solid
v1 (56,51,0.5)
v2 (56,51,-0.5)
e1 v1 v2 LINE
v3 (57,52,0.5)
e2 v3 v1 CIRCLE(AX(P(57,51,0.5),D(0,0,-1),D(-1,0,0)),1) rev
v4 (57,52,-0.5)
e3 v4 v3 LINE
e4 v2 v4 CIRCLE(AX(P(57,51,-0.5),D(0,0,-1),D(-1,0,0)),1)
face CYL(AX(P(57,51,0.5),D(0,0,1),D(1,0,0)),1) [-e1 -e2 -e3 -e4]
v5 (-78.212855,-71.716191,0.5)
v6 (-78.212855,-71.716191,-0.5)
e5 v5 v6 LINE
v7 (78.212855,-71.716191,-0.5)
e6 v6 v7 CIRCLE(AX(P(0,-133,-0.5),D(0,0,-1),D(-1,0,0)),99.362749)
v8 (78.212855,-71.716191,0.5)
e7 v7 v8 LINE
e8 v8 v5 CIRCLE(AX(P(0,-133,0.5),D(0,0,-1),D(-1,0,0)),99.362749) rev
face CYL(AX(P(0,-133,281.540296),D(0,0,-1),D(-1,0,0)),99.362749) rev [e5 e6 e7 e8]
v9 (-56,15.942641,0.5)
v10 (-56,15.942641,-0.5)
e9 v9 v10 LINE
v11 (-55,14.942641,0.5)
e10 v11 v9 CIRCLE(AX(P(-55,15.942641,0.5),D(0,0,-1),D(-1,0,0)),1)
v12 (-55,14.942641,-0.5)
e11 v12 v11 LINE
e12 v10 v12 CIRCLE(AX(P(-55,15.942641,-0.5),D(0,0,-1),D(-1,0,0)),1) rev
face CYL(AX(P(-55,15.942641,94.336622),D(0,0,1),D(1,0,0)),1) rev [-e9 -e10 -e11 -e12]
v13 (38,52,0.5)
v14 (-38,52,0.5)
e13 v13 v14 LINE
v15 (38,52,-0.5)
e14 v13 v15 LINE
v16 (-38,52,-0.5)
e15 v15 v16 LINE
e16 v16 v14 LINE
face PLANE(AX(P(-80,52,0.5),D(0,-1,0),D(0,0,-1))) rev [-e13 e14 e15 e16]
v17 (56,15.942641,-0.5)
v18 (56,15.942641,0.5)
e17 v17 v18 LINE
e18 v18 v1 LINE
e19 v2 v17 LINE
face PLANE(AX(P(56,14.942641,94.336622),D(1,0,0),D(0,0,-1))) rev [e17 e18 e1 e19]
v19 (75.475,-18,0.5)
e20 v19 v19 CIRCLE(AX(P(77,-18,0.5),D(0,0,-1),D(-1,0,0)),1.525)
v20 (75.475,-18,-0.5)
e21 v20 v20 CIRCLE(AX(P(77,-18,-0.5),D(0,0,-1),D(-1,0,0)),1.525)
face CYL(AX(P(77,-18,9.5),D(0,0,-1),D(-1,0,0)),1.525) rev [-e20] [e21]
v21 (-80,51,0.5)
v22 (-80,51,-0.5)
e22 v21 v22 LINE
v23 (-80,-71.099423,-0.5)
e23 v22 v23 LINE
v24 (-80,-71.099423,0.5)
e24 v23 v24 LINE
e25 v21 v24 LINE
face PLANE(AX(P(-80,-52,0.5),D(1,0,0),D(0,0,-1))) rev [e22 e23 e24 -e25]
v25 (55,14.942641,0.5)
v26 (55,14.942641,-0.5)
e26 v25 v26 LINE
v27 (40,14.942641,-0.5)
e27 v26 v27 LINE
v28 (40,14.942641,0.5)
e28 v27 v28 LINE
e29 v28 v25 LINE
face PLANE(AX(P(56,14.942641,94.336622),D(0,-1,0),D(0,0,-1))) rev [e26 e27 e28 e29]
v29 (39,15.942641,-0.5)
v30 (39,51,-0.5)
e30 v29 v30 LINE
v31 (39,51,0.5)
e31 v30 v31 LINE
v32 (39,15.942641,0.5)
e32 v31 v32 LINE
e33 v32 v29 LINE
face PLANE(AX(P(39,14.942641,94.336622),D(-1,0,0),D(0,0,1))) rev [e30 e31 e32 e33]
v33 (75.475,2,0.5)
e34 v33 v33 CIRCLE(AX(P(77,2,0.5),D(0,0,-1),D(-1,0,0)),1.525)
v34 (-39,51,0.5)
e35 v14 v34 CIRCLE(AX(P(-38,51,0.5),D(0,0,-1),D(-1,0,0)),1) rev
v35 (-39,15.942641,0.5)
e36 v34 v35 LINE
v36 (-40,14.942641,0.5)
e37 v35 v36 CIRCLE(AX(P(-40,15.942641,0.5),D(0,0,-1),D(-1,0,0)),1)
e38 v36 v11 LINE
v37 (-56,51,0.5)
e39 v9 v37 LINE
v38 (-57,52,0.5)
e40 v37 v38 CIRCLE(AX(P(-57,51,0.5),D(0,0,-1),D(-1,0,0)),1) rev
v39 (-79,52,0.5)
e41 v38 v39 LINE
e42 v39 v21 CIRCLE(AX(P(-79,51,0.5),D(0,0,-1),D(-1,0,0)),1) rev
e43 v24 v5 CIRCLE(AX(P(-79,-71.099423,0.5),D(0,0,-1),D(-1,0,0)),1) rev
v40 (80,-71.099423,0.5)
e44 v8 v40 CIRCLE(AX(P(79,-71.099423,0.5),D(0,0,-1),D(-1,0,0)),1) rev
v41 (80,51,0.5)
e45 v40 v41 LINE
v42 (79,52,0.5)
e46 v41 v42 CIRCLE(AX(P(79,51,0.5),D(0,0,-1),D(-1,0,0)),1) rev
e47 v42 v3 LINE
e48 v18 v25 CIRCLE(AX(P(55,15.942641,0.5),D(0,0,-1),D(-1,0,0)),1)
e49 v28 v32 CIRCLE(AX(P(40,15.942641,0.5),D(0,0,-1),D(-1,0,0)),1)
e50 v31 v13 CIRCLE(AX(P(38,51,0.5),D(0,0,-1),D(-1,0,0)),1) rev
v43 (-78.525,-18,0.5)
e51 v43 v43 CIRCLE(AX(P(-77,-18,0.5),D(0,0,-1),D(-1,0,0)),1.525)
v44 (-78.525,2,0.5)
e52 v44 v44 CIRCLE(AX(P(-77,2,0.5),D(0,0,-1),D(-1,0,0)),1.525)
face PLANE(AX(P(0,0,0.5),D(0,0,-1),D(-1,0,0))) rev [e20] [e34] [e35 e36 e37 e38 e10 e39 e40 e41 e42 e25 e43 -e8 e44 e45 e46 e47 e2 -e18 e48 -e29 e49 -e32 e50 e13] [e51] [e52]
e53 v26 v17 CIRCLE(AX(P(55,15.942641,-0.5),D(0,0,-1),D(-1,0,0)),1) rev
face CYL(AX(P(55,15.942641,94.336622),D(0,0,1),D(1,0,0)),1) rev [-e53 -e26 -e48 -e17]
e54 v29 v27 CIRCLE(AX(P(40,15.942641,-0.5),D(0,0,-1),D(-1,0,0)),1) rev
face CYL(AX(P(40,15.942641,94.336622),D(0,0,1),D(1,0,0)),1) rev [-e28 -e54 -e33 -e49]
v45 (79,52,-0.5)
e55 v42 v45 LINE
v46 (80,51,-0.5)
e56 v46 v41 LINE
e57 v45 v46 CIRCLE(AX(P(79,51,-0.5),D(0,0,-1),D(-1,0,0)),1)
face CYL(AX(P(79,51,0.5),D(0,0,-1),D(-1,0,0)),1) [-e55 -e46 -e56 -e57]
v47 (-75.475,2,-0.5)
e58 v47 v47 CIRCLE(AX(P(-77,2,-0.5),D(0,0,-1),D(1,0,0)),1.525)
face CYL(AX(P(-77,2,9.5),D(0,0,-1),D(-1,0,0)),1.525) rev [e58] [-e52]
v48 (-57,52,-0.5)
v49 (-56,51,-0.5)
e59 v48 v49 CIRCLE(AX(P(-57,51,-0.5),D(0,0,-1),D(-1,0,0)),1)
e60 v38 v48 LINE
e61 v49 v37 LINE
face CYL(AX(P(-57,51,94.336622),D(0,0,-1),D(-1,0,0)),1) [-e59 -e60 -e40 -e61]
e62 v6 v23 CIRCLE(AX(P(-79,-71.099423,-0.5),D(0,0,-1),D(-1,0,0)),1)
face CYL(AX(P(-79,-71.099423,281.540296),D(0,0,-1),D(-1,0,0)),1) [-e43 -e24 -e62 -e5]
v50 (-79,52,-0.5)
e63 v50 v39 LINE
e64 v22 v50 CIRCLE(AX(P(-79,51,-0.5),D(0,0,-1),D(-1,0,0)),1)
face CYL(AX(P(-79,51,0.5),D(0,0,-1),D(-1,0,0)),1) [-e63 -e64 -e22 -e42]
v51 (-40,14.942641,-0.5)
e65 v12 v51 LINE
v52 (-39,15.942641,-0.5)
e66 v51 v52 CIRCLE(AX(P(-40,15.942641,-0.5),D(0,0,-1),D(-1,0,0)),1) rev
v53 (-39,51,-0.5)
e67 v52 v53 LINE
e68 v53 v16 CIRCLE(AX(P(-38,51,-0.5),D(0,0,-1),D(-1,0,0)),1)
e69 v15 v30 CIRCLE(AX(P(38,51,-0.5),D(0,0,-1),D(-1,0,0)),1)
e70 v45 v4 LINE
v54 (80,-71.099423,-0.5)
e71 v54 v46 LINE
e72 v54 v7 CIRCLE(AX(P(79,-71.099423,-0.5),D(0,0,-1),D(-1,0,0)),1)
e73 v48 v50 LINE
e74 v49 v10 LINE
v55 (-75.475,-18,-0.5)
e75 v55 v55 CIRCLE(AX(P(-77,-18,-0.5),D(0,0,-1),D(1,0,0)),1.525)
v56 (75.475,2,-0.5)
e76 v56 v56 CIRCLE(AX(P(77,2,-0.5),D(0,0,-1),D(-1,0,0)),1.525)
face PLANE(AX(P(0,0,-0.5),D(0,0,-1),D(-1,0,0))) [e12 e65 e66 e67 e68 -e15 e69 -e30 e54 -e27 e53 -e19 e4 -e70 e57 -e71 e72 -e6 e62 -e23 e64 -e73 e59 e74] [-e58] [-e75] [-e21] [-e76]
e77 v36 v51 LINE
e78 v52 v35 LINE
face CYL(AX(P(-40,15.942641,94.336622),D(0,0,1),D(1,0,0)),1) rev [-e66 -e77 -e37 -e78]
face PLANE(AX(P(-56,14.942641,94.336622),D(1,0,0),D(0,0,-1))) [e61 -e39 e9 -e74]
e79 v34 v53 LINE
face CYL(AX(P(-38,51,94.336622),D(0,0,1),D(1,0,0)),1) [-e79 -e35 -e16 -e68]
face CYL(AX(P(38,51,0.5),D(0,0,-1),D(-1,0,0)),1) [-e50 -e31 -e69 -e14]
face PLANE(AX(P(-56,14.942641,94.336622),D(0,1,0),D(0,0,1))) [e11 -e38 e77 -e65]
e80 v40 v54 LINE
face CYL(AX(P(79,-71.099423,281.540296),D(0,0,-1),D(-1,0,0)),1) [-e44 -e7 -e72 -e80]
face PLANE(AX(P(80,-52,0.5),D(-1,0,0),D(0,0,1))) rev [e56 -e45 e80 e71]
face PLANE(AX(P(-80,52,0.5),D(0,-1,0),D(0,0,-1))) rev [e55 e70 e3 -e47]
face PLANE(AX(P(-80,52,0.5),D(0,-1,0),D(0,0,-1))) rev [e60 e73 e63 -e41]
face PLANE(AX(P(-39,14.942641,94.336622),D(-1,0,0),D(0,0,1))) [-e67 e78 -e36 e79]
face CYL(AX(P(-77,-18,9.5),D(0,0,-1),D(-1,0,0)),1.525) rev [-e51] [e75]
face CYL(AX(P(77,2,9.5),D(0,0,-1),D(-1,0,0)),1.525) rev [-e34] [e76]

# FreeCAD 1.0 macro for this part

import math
import FreeCAD as App
import Part
import Sketcher

V = App.Vector
Q = App.Units.Quantity


def edges_at(feature, points):
    """Names of the edges that pass closest to the given points."""
    edges = feature.Shape.Edges
    near = lambda p: min(range(len(edges)), key=lambda i: edges[i].distToShape(Part.Vertex(*p))[0])
    return sorted({f"Edge{near(p) + 1}" for p in points})

doc = App.newDocument("Part")
body = doc.addObject("PartDesign::Body", "Body")

# Sketch on XY plane
sketch1 = doc.addObject("Sketcher::SketchObject", "Sketch")
body.addObject(sketch1)
sketch1.AttachmentSupport = (doc.XY_Plane, [""])
sketch1.MapMode = "FlatFace"
sketch1.addGeometry(Part.LineSegment(V(-80, 52, 0), V(-80, -52, 0)), False)
sketch1.addGeometry(Part.LineSegment(V(-80, -52, 0), V(80, -52, 0)), False)
sketch1.addGeometry(Part.LineSegment(V(80, -52, 0), V(80, 52, 0)), False)
sketch1.addGeometry(Part.LineSegment(V(80, 52, 0), V(-80, 52, 0)), False)
sketch1.addConstraint(Sketcher.Constraint("Coincident", 0, 2, 1, 1))
sketch1.addConstraint(Sketcher.Constraint("Coincident", 1, 2, 2, 1))
sketch1.addConstraint(Sketcher.Constraint("Coincident", 2, 2, 3, 1))
sketch1.addConstraint(Sketcher.Constraint("Coincident", 3, 2, 0, 1))
sketch1.addConstraint(Sketcher.Constraint("Vertical", 0))
sketch1.addConstraint(Sketcher.Constraint("Horizontal", 1))
sketch1.addConstraint(Sketcher.Constraint("Vertical", 2))
sketch1.addConstraint(Sketcher.Constraint("Horizontal", 3))
sketch1.addConstraint(Sketcher.Constraint("Symmetric", 0, 2, 2, 2, -1, 1))
sketch1.addConstraint(Sketcher.Constraint("DistanceX", 1, 1, 1, 2, Q("160 mm")))
sketch1.addConstraint(Sketcher.Constraint("DistanceY", 0, 2, 0, 1, Q("104 mm")))
pad1 = doc.addObject("PartDesign::Pad", "Pad")
body.addObject(pad1)
pad1.Profile = sketch1
pad1.Length = 1
pad1.Midplane = True

# Sketch on XY plane
sketch2 = doc.addObject("Sketcher::SketchObject", "Sketch001")
body.addObject(sketch2)
sketch2.AttachmentSupport = (doc.XY_Plane, [""])
sketch2.MapMode = "FlatFace"
sketch2.AttachmentOffset = App.Placement(V(0, 0, -0.5), App.Rotation())
sketch2.addGeometry(Part.Circle(V(0, -133, 0), V(0, 0, 1), 99), False)
sketch2.addConstraint(Sketcher.Constraint("PointOnObject", 0, 3, -2))
sketch2.addConstraint(Sketcher.Constraint("DistanceY", 0, 3, -1, 1, Q("133 mm")))
sketch2.addConstraint(Sketcher.Constraint("Diameter", 0, Q("198.725499 mm")))
pocket1 = doc.addObject("PartDesign::Pocket", "Pocket")
body.addObject(pocket1)
pocket1.Profile = sketch2
pocket1.Length = 1
pocket1.Reversed = True

# Sketch on XY plane
sketch3 = doc.addObject("Sketcher::SketchObject", "Sketch002")
body.addObject(sketch3)
sketch3.AttachmentSupport = (doc.XY_Plane, [""])
sketch3.MapMode = "FlatFace"
sketch3.AttachmentOffset = App.Placement(V(0, 0, -0.5), App.Rotation())
sketch3.addGeometry(Part.LineSegment(V(-80, -74, 0), V(-80, -52, 0)), False)
sketch3.addGeometry(Part.LineSegment(V(-80, -52, 0), V(-58, -52, 0)), False)
sketch3.addGeometry(Part.ArcOfCircle(Part.Circle(V(0, -133, 0), V(0, 0, 1), 99), math.radians(125.39), math.radians(143.62)), False)
sketch3.addConstraint(Sketcher.Constraint("Coincident", 0, 2, 1, 1))
sketch3.addConstraint(Sketcher.Constraint("Coincident", 1, 2, 2, 1))
sketch3.addConstraint(Sketcher.Constraint("Coincident", 2, 2, 0, 1))
sketch3.addConstraint(Sketcher.Constraint("Vertical", 0))
sketch3.addConstraint(Sketcher.Constraint("Horizontal", 1))
sketch3.addConstraint(Sketcher.Constraint("PointOnObject", 2, 3, -2))
sketch3.addConstraint(Sketcher.Constraint("DistanceY", 2, 3, -1, 1, Q("133 mm")))
sketch3.addConstraint(Sketcher.Constraint("DistanceX", 0, 2, -1, 1, Q("80 mm")))
sketch3.addConstraint(Sketcher.Constraint("DistanceY", 0, 2, -1, 1, Q("52 mm")))
sketch3.addConstraint(Sketcher.Constraint("Radius", 2, Q("99.36275 mm")))
pad2 = doc.addObject("PartDesign::Pad", "Pad001")
body.addObject(pad2)
pad2.Profile = sketch3
pad2.Length = 1
doc.recompute()

mirrored = doc.addObject("PartDesign::Mirrored", "Mirrored")
body.addObject(mirrored)
mirrored.Originals = [pad2]
mirrored.MirrorPlane = (doc.YZ_Plane, [""])
body.Tip = mirrored

# Sketch on XY plane
sketch4 = doc.addObject("Sketcher::SketchObject", "Sketch003")
body.addObject(sketch4)
sketch4.AttachmentSupport = (doc.XY_Plane, [""])
sketch4.MapMode = "FlatFace"
sketch4.AttachmentOffset = App.Placement(V(0, 0, -0.5), App.Rotation())
sketch4.addGeometry(Part.LineSegment(V(56, 107, 0), V(56, 15, 0)), False)
sketch4.addGeometry(Part.LineSegment(V(56, 15, 0), V(39, 15, 0)), False)
sketch4.addGeometry(Part.LineSegment(V(39, 15, 0), V(39, 107, 0)), False)
sketch4.addGeometry(Part.LineSegment(V(39, 107, 0), V(56, 107, 0)), False)
sketch4.addConstraint(Sketcher.Constraint("Coincident", 0, 2, 1, 1))
sketch4.addConstraint(Sketcher.Constraint("Coincident", 1, 2, 2, 1))
sketch4.addConstraint(Sketcher.Constraint("Coincident", 2, 2, 3, 1))
sketch4.addConstraint(Sketcher.Constraint("Coincident", 3, 2, 0, 1))
sketch4.addConstraint(Sketcher.Constraint("Vertical", 0))
sketch4.addConstraint(Sketcher.Constraint("Horizontal", 1))
sketch4.addConstraint(Sketcher.Constraint("Vertical", 2))
sketch4.addConstraint(Sketcher.Constraint("Horizontal", 3))
sketch4.addConstraint(Sketcher.Constraint("DistanceX", 1, 2, 1, 1, Q("17 mm")))
sketch4.addConstraint(Sketcher.Constraint("DistanceX", -1, 1, 0, 2, Q("56 mm")))
sketch4.addConstraint(Sketcher.Constraint("DistanceY", 0, 2, 0, 1, Q("92.283864 mm")))
sketch4.addConstraint(Sketcher.Constraint("DistanceY", -1, 1, 0, 2, Q("14.942641 mm")))
pocket2 = doc.addObject("PartDesign::Pocket", "Pocket001")
body.addObject(pocket2)
pocket2.Profile = sketch4
pocket2.Length = 1
pocket2.Reversed = True
doc.recompute()

mirrored2 = doc.addObject("PartDesign::Mirrored", "Mirrored001")
body.addObject(mirrored2)
mirrored2.Originals = [pocket2]
mirrored2.MirrorPlane = (doc.YZ_Plane, [""])
body.Tip = mirrored2

# Sketch on XY plane
sketch5 = doc.addObject("Sketcher::SketchObject", "Sketch004")
body.addObject(sketch5)
sketch5.AttachmentSupport = (doc.XY_Plane, [""])
sketch5.MapMode = "FlatFace"
sketch5.AttachmentOffset = App.Placement(V(0, 0, -0.5), App.Rotation())
sketch5.addGeometry(Part.Circle(V(77, 2, 0), V(0, 0, 1), 1.5), False)
sketch5.addGeometry(Part.Circle(V(77, -18, 0), V(0, 0, 1), 1.5), False)
sketch5.addGeometry(Part.Circle(V(-77, -18, 0), V(0, 0, 1), 1.5), False)
sketch5.addGeometry(Part.Circle(V(-77, 2, 0), V(0, 0, 1), 1.5), False)
sketch5.addConstraint(Sketcher.Constraint("Equal", 0, 1))
sketch5.addConstraint(Sketcher.Constraint("Equal", 1, 2))
sketch5.addConstraint(Sketcher.Constraint("Equal", 2, 3))
sketch5.addConstraint(Sketcher.Constraint("Symmetric", 1, 3, 2, 3, -2))
sketch5.addConstraint(Sketcher.Constraint("Symmetric", 0, 3, 3, 3, -2))
sketch5.addConstraint(Sketcher.Constraint("Vertical", 0, 3, 1, 3))
sketch5.addConstraint(Sketcher.Constraint("Diameter", 0, Q("3.05 mm")))
sketch5.addConstraint(Sketcher.Constraint("DistanceX", -1, 1, 0, 3, Q("77 mm")))
sketch5.addConstraint(Sketcher.Constraint("DistanceY", -1, 1, 0, 3, Q("2 mm")))
sketch5.addConstraint(Sketcher.Constraint("DistanceY", 1, 3, -1, 1, Q("18 mm")))
pocket3 = doc.addObject("PartDesign::Pocket", "Pocket002")
body.addObject(pocket3)
pocket3.Profile = sketch5
pocket3.Length = 10
pocket3.Reversed = True
doc.recompute()

fillet = doc.addObject("PartDesign::Fillet", "Fillet")
body.addObject(fillet)
fillet.Base = (pocket3, edges_at(pocket3, [
    (-80, -74.068, 0),
    (80, -74.068, 0),
    (39, 52, 0),
    (56, 52, 0),
    (56, 14.943, 0),
    (39, 14.943, 0),
    (-39, 14.943, 0),
    (-56, 14.943, 0),
    (-56, 52, 0),
    (-39, 52, 0),
    (-80, 52, 0),
    (80, 52, 0),
]))
fillet.Radius = 1

doc.recompute()
